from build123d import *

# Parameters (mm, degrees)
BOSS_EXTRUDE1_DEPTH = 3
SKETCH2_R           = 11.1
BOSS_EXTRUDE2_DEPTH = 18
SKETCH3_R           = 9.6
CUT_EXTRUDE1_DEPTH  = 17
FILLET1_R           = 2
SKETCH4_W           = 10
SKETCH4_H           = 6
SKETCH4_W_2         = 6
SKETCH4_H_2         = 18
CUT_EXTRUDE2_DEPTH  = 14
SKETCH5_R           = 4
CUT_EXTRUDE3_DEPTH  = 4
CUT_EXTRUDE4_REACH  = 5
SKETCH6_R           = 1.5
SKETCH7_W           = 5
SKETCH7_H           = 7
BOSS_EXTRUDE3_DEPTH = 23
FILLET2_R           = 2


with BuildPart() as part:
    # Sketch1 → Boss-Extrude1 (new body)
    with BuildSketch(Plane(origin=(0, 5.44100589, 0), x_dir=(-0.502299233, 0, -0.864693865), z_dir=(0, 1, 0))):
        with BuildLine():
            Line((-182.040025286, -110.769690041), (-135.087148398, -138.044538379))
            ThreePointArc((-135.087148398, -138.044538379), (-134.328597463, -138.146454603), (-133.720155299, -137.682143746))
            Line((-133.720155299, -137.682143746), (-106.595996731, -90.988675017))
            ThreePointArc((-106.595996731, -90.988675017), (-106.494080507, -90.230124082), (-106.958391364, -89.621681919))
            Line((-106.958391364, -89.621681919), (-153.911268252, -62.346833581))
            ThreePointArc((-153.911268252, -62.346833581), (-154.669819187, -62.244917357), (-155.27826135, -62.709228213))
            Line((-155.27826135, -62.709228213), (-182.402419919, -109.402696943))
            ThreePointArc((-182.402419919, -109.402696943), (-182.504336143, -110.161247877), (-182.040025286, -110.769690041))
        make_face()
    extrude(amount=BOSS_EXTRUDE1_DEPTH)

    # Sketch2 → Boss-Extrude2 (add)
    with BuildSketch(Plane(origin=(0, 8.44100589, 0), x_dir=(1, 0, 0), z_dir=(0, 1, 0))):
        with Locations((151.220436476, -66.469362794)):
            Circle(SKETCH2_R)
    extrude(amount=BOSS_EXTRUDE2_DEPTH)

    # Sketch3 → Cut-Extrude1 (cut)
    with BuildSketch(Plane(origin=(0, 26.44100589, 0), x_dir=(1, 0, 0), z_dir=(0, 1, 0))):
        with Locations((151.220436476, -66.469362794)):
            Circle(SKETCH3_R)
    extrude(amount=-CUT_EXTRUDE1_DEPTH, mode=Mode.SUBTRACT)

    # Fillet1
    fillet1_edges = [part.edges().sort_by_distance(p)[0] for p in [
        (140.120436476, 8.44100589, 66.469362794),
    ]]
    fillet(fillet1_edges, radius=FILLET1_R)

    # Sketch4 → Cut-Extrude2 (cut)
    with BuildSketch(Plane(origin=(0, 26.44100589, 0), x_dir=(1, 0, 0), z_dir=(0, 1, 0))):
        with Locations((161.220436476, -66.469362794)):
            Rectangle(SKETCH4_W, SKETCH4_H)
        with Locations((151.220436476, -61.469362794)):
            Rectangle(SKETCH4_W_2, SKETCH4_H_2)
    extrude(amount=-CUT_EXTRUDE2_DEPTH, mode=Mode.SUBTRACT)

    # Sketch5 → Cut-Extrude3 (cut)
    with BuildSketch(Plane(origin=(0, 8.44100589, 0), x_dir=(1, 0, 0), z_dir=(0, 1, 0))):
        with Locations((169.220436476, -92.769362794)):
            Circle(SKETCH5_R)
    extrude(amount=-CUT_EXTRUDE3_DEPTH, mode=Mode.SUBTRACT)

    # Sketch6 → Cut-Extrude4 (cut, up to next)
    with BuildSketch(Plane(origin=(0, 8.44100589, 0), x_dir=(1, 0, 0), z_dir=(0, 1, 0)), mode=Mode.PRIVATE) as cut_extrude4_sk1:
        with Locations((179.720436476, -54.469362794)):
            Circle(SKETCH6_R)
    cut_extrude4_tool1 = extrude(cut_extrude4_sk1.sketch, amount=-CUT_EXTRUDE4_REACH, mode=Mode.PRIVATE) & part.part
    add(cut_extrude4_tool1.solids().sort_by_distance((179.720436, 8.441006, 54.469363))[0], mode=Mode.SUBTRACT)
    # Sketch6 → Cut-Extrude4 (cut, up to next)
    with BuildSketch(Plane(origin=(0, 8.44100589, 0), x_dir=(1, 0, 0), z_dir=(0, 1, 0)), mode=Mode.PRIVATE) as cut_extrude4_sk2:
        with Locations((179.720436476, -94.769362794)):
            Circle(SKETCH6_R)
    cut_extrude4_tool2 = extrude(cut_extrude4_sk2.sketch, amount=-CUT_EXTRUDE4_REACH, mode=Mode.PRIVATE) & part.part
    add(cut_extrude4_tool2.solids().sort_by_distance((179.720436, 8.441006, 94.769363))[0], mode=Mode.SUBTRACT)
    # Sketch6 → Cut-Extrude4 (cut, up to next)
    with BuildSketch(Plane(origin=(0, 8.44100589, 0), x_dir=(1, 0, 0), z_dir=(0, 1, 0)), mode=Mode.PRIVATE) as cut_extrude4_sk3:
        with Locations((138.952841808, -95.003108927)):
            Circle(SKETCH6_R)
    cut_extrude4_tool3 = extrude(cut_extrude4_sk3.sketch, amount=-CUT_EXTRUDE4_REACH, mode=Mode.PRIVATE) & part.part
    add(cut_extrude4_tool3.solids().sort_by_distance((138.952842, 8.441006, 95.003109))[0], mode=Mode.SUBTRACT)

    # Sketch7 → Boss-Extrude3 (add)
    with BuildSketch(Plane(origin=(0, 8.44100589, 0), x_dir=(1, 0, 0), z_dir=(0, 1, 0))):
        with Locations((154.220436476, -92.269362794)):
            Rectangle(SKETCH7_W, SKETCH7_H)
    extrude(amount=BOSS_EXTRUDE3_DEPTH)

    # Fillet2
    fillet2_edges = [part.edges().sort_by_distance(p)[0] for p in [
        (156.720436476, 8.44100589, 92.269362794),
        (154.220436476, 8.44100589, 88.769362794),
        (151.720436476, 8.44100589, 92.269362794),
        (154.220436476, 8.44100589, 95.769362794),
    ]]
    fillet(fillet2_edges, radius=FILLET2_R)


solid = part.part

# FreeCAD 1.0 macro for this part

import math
import FreeCAD as App
import Part
import Sketcher


def edges_at(feature, points):
    """Names of the edges that pass closest to the given points."""
    edges = feature.Shape.Edges
    near = lambda p: min(range(len(edges)), key=lambda i: edges[i].distToShape(Part.Vertex(*p))[0])
    return sorted({f"Edge{near(p) + 1}" for p in points})

doc = App.newDocument("Part")
body = doc.addObject("PartDesign::Body", "Body")

# Sketch on XZ plane
sketch1 = body.newObject("Sketcher::SketchObject", "Sketch")
sketch1.AttachmentSupport = (doc.getObject("XZ_Plane"), [""])
sketch1.MapMode = "FlatFace"
sketch1.AttachmentOffset = App.Placement(App.Vector(0, 0, -5.441006), App.Rotation())
sketch1.addGeometry([
    Part.LineSegment(App.Vector(187.220436, 101.769363, 0), App.Vector(187.220436, 47.469363, 0)),  # 0
    Part.ArcOfCircle(Part.Circle(App.Vector(186.220436, 47.469363, 0), App.Vector(0, 0, 1), 1), math.radians(-90), math.radians(0)),  # 1
    Part.LineSegment(App.Vector(186.220436, 46.469363, 0), App.Vector(132.220436, 46.469363, 0)),  # 2
    Part.ArcOfCircle(Part.Circle(App.Vector(132.220436, 47.469363, 0), App.Vector(0, 0, 1), 1), math.radians(180), math.radians(270)),  # 3
    Part.LineSegment(App.Vector(131.220436, 47.469363, 0), App.Vector(131.220436, 101.769363, 0)),  # 4
    Part.ArcOfCircle(Part.Circle(App.Vector(132.220436, 101.769363, 0), App.Vector(0, 0, 1), 1), math.radians(90), math.radians(180)),  # 5
    Part.LineSegment(App.Vector(132.220436, 102.769363, 0), App.Vector(186.220436, 102.769363, 0)),  # 6
    Part.ArcOfCircle(Part.Circle(App.Vector(186.220436, 101.769363, 0), App.Vector(0, 0, 1), 1), math.radians(0), math.radians(90)),  # 7
], False)
sketch1.addConstraint([
    Sketcher.Constraint("Tangent", 0, 2, 1, 2),
    Sketcher.Constraint("Tangent", 1, 1, 2, 1),
    Sketcher.Constraint("Tangent", 2, 2, 3, 2),
    Sketcher.Constraint("Tangent", 3, 1, 4, 1),
    Sketcher.Constraint("Tangent", 4, 2, 5, 2),
    Sketcher.Constraint("Tangent", 5, 1, 6, 1),
    Sketcher.Constraint("Tangent", 6, 2, 7, 2),
    Sketcher.Constraint("Tangent", 7, 1, 0, 1),
    Sketcher.Constraint("Vertical", 0),
    Sketcher.Constraint("Horizontal", 2),
    Sketcher.Constraint("Vertical", 4),
    Sketcher.Constraint("Horizontal", 6),
    Sketcher.Constraint("Equal", 1, 3),
    Sketcher.Constraint("Equal", 3, 5),
    Sketcher.Constraint("Equal", 5, 7),
    Sketcher.Constraint("Radius", 1, 1.0),
    Sketcher.Constraint("DistanceX", 2, 2, 2, 1, 54.0),
    Sketcher.Constraint("DistanceY", 0, 2, 0, 1, 54.3),
    Sketcher.Constraint("DistanceX", -1, 1, 1, 3, 186.220436),
    Sketcher.Constraint("DistanceY", -1, 1, 1, 3, 47.469363),
])
pad1 = body.newObject("PartDesign::Pad", "Pad")
pad1.Profile = sketch1
pad1.Length = 3
pad1.Reversed = True

# Sketch on XZ plane
sketch2 = body.newObject("Sketcher::SketchObject", "Sketch001")
sketch2.AttachmentSupport = (doc.getObject("XZ_Plane"), [""])
sketch2.MapMode = "FlatFace"
sketch2.AttachmentOffset = App.Placement(App.Vector(0, 0, -8.441006), App.Rotation())
sketch2.addGeometry(Part.Circle(App.Vector(151.220436, 66.469363, 0), App.Vector(0, 0, 1), 11.1), False)
sketch2.addConstraint([
    Sketcher.Constraint("Diameter", 0, 22.2),
    Sketcher.Constraint("DistanceX", -1, 1, 0, 3, 151.220436),
    Sketcher.Constraint("DistanceY", -1, 1, 0, 3, 66.469363),
])
pad2 = body.newObject("PartDesign::Pad", "Pad001")
pad2.Profile = sketch2
pad2.Length = 18
pad2.Reversed = True

# Sketch on XZ plane
sketch3 = body.newObject("Sketcher::SketchObject", "Sketch002")
sketch3.AttachmentSupport = (doc.getObject("XZ_Plane"), [""])
sketch3.MapMode = "FlatFace"
sketch3.AttachmentOffset = App.Placement(App.Vector(0, 0, -26.441006), App.Rotation())
sketch3.addGeometry(Part.Circle(App.Vector(151.220436, 66.469363, 0), App.Vector(0, 0, 1), 9.6), False)
sketch3.addConstraint([
    Sketcher.Constraint("Diameter", 0, 19.2),
    Sketcher.Constraint("DistanceX", -1, 1, 0, 3, 151.220436),
    Sketcher.Constraint("DistanceY", -1, 1, 0, 3, 66.469363),
])
pocket1 = body.newObject("PartDesign::Pocket", "Pocket")
pocket1.Profile = sketch3
pocket1.Length = 17
pocket1.Reversed = True
doc.recompute()

fillet = body.newObject("PartDesign::Fillet", "Fillet")
fillet.Base = (pocket1, edges_at(pocket1, [(140.12, 8.441, 66.469)]))
fillet.Radius = 2

# Sketch on XZ plane
sketch4 = body.newObject("Sketcher::SketchObject", "Sketch003")
sketch4.AttachmentSupport = (doc.getObject("XZ_Plane"), [""])
sketch4.MapMode = "FlatFace"
sketch4.AttachmentOffset = App.Placement(App.Vector(0, 0, -26.441006), App.Rotation())
sketch4.addGeometry([
    Part.LineSegment(App.Vector(156.220436, 63.469363, 0), App.Vector(156.220436, 69.469363, 0)),  # 0
    Part.LineSegment(App.Vector(156.220436, 69.469363, 0), App.Vector(166.220436, 69.469363, 0)),  # 1
    Part.LineSegment(App.Vector(166.220436, 69.469363, 0), App.Vector(166.220436, 63.469363, 0)),  # 2
    Part.LineSegment(App.Vector(166.220436, 63.469363, 0), App.Vector(156.220436, 63.469363, 0)),  # 3
    Part.LineSegment(App.Vector(148.220436, 52.469363, 0), App.Vector(148.220436, 70.469363, 0)),  # 4
    Part.LineSegment(App.Vector(148.220436, 70.469363, 0), App.Vector(154.220436, 70.469363, 0)),  # 5
    Part.LineSegment(App.Vector(154.220436, 70.469363, 0), App.Vector(154.220436, 52.469363, 0)),  # 6
    Part.LineSegment(App.Vector(154.220436, 52.469363, 0), App.Vector(148.220436, 52.469363, 0)),  # 7
], False)
sketch4.addConstraint([
    Sketcher.Constraint("Coincident", 0, 2, 1, 1),
    Sketcher.Constraint("Coincident", 1, 2, 2, 1),
    Sketcher.Constraint("Coincident", 2, 2, 3, 1),
    Sketcher.Constraint("Coincident", 3, 2, 0, 1),
    Sketcher.Constraint("Coincident", 4, 2, 5, 1),
    Sketcher.Constraint("Coincident", 5, 2, 6, 1),
    Sketcher.Constraint("Coincident", 6, 2, 7, 1),
    Sketcher.Constraint("Coincident", 7, 2, 4, 1),
    Sketcher.Constraint("Vertical", 0),
    Sketcher.Constraint("Horizontal", 1),
    Sketcher.Constraint("Vertical", 2),
    Sketcher.Constraint("Horizontal", 3),
    Sketcher.Constraint("Vertical", 4),
    Sketcher.Constraint("Horizontal", 5),
    Sketcher.Constraint("Vertical", 6),
    Sketcher.Constraint("Horizontal", 7),
    Sketcher.Constraint("Equal", 7, 0),
    Sketcher.Constraint("DistanceX", 1, 1, 1, 2, 10.0),
    Sketcher.Constraint("DistanceX", 5, 1, 5, 2, 6.0),
    Sketcher.Constraint("DistanceY", 4, 1, 4, 2, 18.0),
    Sketcher.Constraint("DistanceX", 4, 2, 0, 2, 8.0),
    Sketcher.Constraint("DistanceY", 0, 2, 4, 2, 1.0),
    Sketcher.Constraint("DistanceX", -1, 1, 0, 2, 156.220436),
    Sketcher.Constraint("DistanceY", -1, 1, 0, 2, 69.469363),
])
pocket2 = body.newObject("PartDesign::Pocket", "Pocket001")
pocket2.Profile = sketch4
pocket2.Length = 14
pocket2.Reversed = True

# Sketch on XZ plane
sketch5 = body.newObject("Sketcher::SketchObject", "Sketch004")
sketch5.AttachmentSupport = (doc.getObject("XZ_Plane"), [""])
sketch5.MapMode = "FlatFace"
sketch5.AttachmentOffset = App.Placement(App.Vector(0, 0, -8.441006), App.Rotation())
sketch5.addGeometry(Part.Circle(App.Vector(169.220436, 92.769363, 0), App.Vector(0, 0, 1), 4), False)
sketch5.addConstraint([
    Sketcher.Constraint("Diameter", 0, 8.0),
    Sketcher.Constraint("DistanceX", -1, 1, 0, 3, 169.220436),
    Sketcher.Constraint("DistanceY", -1, 1, 0, 3, 92.769363),
])
pocket3 = body.newObject("PartDesign::Pocket", "Pocket002")
pocket3.Profile = sketch5
pocket3.Length = 4
pocket3.Reversed = True

# Sketch on XZ plane
sketch6 = body.newObject("Sketcher::SketchObject", "Sketch005")
sketch6.AttachmentSupport = (doc.getObject("XZ_Plane"), [""])
sketch6.MapMode = "FlatFace"
sketch6.AttachmentOffset = App.Placement(App.Vector(0, 0, -8.441006), App.Rotation())
sketch6.addGeometry(Part.Circle(App.Vector(179.720436, 54.469363, 0), App.Vector(0, 0, 1), 1.5), False)
sketch6.addConstraint([
    Sketcher.Constraint("Diameter", 0, 3.0),
    Sketcher.Constraint("DistanceX", -1, 1, 0, 3, 179.720436),
    Sketcher.Constraint("DistanceY", -1, 1, 0, 3, 54.469363),
])
pocket4 = body.newObject("PartDesign::Pocket", "Pocket003")
pocket4.Profile = sketch6
pocket4.Type = "UpToFirst"
pocket4.Reversed = True

# Sketch on XZ plane
sketch7 = body.newObject("Sketcher::SketchObject", "Sketch006")
sketch7.AttachmentSupport = (doc.getObject("XZ_Plane"), [""])
sketch7.MapMode = "FlatFace"
sketch7.AttachmentOffset = App.Placement(App.Vector(0, 0, -8.441006), App.Rotation())
sketch7.addGeometry(Part.Circle(App.Vector(179.720436, 94.769363, 0), App.Vector(0, 0, 1), 1.5), False)
sketch7.addConstraint([
    Sketcher.Constraint("Diameter", 0, 3.0),
    Sketcher.Constraint("DistanceX", -1, 1, 0, 3, 179.720436),
    Sketcher.Constraint("DistanceY", -1, 1, 0, 3, 94.769363),
])
pocket5 = body.newObject("PartDesign::Pocket", "Pocket004")
pocket5.Profile = sketch7
pocket5.Type = "UpToFirst"
pocket5.Reversed = True

# Sketch on XZ plane
sketch8 = body.newObject("Sketcher::SketchObject", "Sketch007")
sketch8.AttachmentSupport = (doc.getObject("XZ_Plane"), [""])
sketch8.MapMode = "FlatFace"
sketch8.AttachmentOffset = App.Placement(App.Vector(0, 0, -8.441006), App.Rotation())
sketch8.addGeometry(Part.Circle(App.Vector(138.952842, 95.003109, 0), App.Vector(0, 0, 1), 1.5), False)
sketch8.addConstraint([
    Sketcher.Constraint("Diameter", 0, 3.0),
    Sketcher.Constraint("DistanceX", -1, 1, 0, 3, 138.952842),
    Sketcher.Constraint("DistanceY", -1, 1, 0, 3, 95.003109),
])
pocket6 = body.newObject("PartDesign::Pocket", "Pocket005")
pocket6.Profile = sketch8
pocket6.Type = "UpToFirst"
pocket6.Reversed = True

# Sketch on XZ plane
sketch9 = body.newObject("Sketcher::SketchObject", "Sketch008")
sketch9.AttachmentSupport = (doc.getObject("XZ_Plane"), [""])
sketch9.MapMode = "FlatFace"
sketch9.AttachmentOffset = App.Placement(App.Vector(0, 0, -8.441006), App.Rotation())
sketch9.addGeometry([
    Part.LineSegment(App.Vector(151.720436, 88.769363, 0), App.Vector(151.720436, 95.769363, 0)),
    Part.LineSegment(App.Vector(151.720436, 95.769363, 0), App.Vector(156.720436, 95.769363, 0)),
    Part.LineSegment(App.Vector(156.720436, 95.769363, 0), App.Vector(156.720436, 88.769363, 0)),
    Part.LineSegment(App.Vector(156.720436, 88.769363, 0), App.Vector(151.720436, 88.769363, 0)),
], False)
sketch9.addConstraint([
    Sketcher.Constraint("Coincident", 0, 2, 1, 1),
    Sketcher.Constraint("Coincident", 1, 2, 2, 1),
    Sketcher.Constraint("Coincident", 2, 2, 3, 1),
    Sketcher.Constraint("Coincident", 3, 2, 0, 1),
    Sketcher.Constraint("Vertical", 0),
    Sketcher.Constraint("Horizontal", 1),
    Sketcher.Constraint("Vertical", 2),
    Sketcher.Constraint("Horizontal", 3),
    Sketcher.Constraint("DistanceX", 1, 1, 1, 2, 5.0),
    Sketcher.Constraint("DistanceY", 0, 1, 0, 2, 7.0),
    Sketcher.Constraint("DistanceX", -1, 1, 0, 2, 151.720436),
    Sketcher.Constraint("DistanceY", -1, 1, 0, 2, 95.769363),
])
pad3 = body.newObject("PartDesign::Pad", "Pad002")
pad3.Profile = sketch9
pad3.Length = 23
pad3.Reversed = True
doc.recompute()

fillet2 = body.newObject("PartDesign::Fillet", "Fillet001")
fillet2.Base = (pad3, edges_at(pad3, [
    (156.72, 8.441, 92.269),
    (154.22, 8.441, 88.769),
    (151.72, 8.441, 92.269),
    (154.22, 8.441, 95.769),
]))
fillet2.Radius = 2

doc.recompute()
